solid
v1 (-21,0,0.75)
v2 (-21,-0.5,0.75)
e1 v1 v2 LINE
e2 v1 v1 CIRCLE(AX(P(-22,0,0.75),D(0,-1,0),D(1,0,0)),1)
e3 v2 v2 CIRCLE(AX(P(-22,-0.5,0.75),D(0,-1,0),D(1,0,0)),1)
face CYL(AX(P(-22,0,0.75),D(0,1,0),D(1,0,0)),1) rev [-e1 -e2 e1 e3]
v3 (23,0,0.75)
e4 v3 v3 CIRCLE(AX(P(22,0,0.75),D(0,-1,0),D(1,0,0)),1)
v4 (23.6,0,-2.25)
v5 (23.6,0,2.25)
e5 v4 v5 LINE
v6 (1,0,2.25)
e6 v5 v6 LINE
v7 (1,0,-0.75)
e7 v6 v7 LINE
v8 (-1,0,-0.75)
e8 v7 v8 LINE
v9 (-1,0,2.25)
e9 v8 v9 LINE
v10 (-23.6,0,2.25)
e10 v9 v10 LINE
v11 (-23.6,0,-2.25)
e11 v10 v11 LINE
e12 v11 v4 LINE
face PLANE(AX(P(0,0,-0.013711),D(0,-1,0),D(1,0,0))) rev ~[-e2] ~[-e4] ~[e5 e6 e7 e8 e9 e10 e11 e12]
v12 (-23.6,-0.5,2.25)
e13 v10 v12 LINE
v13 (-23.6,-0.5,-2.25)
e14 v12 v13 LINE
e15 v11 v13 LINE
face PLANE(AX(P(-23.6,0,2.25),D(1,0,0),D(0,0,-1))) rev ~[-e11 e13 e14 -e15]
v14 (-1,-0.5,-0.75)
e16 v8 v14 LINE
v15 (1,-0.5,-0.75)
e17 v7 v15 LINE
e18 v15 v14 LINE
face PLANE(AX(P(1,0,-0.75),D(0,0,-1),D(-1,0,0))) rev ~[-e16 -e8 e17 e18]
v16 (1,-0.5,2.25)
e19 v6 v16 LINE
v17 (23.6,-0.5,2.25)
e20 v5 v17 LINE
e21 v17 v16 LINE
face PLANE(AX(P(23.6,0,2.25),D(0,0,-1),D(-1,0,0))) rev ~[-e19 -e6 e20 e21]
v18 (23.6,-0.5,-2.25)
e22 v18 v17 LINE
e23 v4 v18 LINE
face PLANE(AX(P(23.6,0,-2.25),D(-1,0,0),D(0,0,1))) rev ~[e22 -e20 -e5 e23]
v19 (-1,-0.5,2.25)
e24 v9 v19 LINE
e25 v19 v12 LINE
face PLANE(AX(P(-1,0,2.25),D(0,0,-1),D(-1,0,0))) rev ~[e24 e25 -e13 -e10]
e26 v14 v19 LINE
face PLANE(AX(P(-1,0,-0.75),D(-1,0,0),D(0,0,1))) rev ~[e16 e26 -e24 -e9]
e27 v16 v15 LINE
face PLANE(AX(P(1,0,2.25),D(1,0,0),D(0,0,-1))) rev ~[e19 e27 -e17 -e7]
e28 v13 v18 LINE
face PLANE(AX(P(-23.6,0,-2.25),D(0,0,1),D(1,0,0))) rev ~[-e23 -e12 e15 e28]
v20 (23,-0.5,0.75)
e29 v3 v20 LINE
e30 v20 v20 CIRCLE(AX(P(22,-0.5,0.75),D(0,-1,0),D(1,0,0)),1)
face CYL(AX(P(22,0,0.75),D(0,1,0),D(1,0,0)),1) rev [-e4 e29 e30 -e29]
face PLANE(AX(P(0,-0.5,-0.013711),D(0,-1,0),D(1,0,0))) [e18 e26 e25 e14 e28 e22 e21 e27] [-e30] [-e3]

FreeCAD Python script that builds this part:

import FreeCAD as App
import Part
import Sketcher

V = App.Vector
Q = App.Units.Quantity


def add_polygon(sketch, points):
    """Adds a closed chain of lines whose ends are joined by coincident constraints."""
    first, n = sketch.GeometryCount, len(points)
    for a, b in zip(points, points[1:] + points[:1]):
        sketch.addGeometry(Part.LineSegment(App.Vector(*a, 0), App.Vector(*b, 0)), False)
    for i in range(n):
        sketch.addConstraint(Sketcher.Constraint("Coincident", first + i, 2, first + (i + 1) % n, 1))

doc = App.newDocument("Part")
body = doc.addObject("PartDesign::Body", "Body")

# Sketch on XZ plane
sketch1 = body.newObject("Sketcher::SketchObject", "Sketch")
sketch1.AttachmentSupport = (doc.getObject("XZ_Plane"), [""])
sketch1.MapMode = "FlatFace"
add_polygon(sketch1, [(-23.6, -2.2), (23.6, -2.2), (23.6, 2.2), (1, 2.2), (1, -0.8), (-1, -0.8), (-1, 2.2), (-23.6, 2.2)])  # lines 0-7
sketch1.addGeometry(Part.Circle(V(-22, 0.8, 0), V(0, 0, 1), 1), False)  # 8
sketch1.addGeometry(Part.Circle(V(22, 0.8, 0), V(0, 0, 1), 1), False)  # 9
sketch1.addConstraint([
    Sketcher.Constraint("Horizontal", 0),
    Sketcher.Constraint("Vertical", 1),
    Sketcher.Constraint("Horizontal", 2),
    Sketcher.Constraint("Vertical", 3),
    Sketcher.Constraint("Horizontal", 4),
    Sketcher.Constraint("Vertical", 5),
    Sketcher.Constraint("Horizontal", 6),
    Sketcher.Constraint("Vertical", 7),
    Sketcher.Constraint("Equal", 8, 9),
    Sketcher.Constraint("Symmetric", 0, 2, 6, 2, -1, 1),
    Sketcher.Constraint("Symmetric", 8, 3, 9, 3, -2),
    Sketcher.Constraint("Symmetric", 2, 2, 5, 2, -2),
    Sketcher.Constraint("Diameter", 8, Q("2 mm")),
    Sketcher.Constraint("DistanceX", 4, 2, 4, 1, Q("2 mm")),
    Sketcher.Constraint("DistanceY", 3, 2, 3, 1, Q("3 mm")),
    Sketcher.Constraint("DistanceX", 0, 1, 0, 2, Q("47.2 mm")),
    Sketcher.Constraint("DistanceY", 1, 1, 1, 2, Q("4.5 mm")),
    Sketcher.Constraint("DistanceX", 8, 3, -1, 1, Q("22 mm")),
    Sketcher.Constraint("DistanceY", 0, 2, 9, 3, Q("3 mm")),
])
pad1 = body.newObject("PartDesign::Pad", "Pad")
pad1.Profile = sketch1
pad1.Length = 0.5

doc.recompute()
